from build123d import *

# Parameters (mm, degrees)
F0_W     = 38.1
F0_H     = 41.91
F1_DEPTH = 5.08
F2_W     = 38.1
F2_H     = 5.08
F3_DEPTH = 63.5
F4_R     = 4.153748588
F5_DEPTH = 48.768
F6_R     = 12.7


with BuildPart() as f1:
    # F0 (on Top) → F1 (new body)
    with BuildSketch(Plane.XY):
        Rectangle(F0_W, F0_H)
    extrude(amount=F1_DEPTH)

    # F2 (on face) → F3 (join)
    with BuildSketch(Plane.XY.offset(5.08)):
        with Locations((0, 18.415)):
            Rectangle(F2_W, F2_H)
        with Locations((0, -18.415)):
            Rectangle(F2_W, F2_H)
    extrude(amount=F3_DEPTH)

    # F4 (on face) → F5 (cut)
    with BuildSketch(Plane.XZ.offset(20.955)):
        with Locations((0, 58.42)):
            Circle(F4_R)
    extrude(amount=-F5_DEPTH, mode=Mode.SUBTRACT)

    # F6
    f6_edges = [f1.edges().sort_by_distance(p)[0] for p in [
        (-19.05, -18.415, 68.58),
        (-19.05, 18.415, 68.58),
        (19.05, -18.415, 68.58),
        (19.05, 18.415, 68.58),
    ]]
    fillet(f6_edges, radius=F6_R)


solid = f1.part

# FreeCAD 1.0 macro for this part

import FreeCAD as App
import Part
import Sketcher

V = App.Vector
Q = App.Units.Quantity


def edges_at(feature, points):
    """Names of the edges that pass closest to the given points."""
    edges = feature.Shape.Edges
    near = lambda p: min(range(len(edges)), key=lambda i: edges[i].distToShape(Part.Vertex(*p))[0])
    return sorted({f"Edge{near(p) + 1}" for p in points})


def add_polygon(sketch, points):
    """Adds a closed chain of lines whose ends are joined by coincident constraints."""
    first, n = sketch.GeometryCount, len(points)
    for a, b in zip(points, points[1:] + points[:1]):
        sketch.addGeometry(Part.LineSegment(App.Vector(*a, 0), App.Vector(*b, 0)), False)
    for i in range(n):
        sketch.addConstraint(Sketcher.Constraint("Coincident", first + i, 2, first + (i + 1) % n, 1))

doc = App.newDocument("Part")
body = doc.addObject("PartDesign::Body", "Body")

# Sketch on XY plane
sketch1 = body.newObject("Sketcher::SketchObject", "Sketch")
sketch1.AttachmentSupport = (doc.getObject("XY_Plane"), [""])
sketch1.MapMode = "FlatFace"
add_polygon(sketch1, [(-19, 21), (-19, -21), (19, -21), (19, 21)])  # lines 0-3
sketch1.addConstraint([
    Sketcher.Constraint("Vertical", 0),
    Sketcher.Constraint("Horizontal", 1),
    Sketcher.Constraint("Vertical", 2),
    Sketcher.Constraint("Horizontal", 3),
    Sketcher.Constraint("Symmetric", 0, 2, 2, 2, -1, 1),
    Sketcher.Constraint("DistanceX", 1, 1, 1, 2, Q("1.5 in")),
    Sketcher.Constraint("DistanceY", 0, 2, 0, 1, Q("1.65 in")),
])
pad1 = body.newObject("PartDesign::Pad", "Pad")
pad1.Profile = sketch1
pad1.Length = Q("0.2 in")

# Sketch on XY plane
sketch2 = body.newObject("Sketcher::SketchObject", "Sketch001")
sketch2.AttachmentSupport = (doc.getObject("XY_Plane"), [""])
sketch2.MapMode = "FlatFace"
sketch2.AttachmentOffset = App.Placement(V(0, 0, 0.2 * 25.4), App.Rotation())
add_polygon(sketch2, [(-19, 21), (-19, 16), (19, 16), (19, 21)])  # lines 0-3
add_polygon(sketch2, [(-19, -16), (-19, -21), (19, -21), (19, -16)])  # lines 4-7
sketch2.addConstraint([
    Sketcher.Constraint("Vertical", 0),
    Sketcher.Constraint("Horizontal", 1),
    Sketcher.Constraint("Vertical", 2),
    Sketcher.Constraint("Horizontal", 3),
    Sketcher.Constraint("Vertical", 4),
    Sketcher.Constraint("Horizontal", 5),
    Sketcher.Constraint("Vertical", 6),
    Sketcher.Constraint("Horizontal", 7),
    Sketcher.Constraint("Symmetric", 2, 2, 4, 2, -1, 1),
    Sketcher.Constraint("Symmetric", 0, 2, 6, 2, -1, 1),
    Sketcher.Constraint("Vertical", 3, 2, 4, 2),
    Sketcher.Constraint("DistanceX", 1, 1, 1, 2, Q("1.5 in")),
    Sketcher.Constraint("DistanceY", 0, 2, 0, 1, Q("0.2 in")),
    Sketcher.Constraint("DistanceY", 4, 2, 0, 2, Q("1.45 in")),
])
pad2 = body.newObject("PartDesign::Pad", "Pad001")
pad2.Profile = sketch2
pad2.Length = Q("2.5 in")

# Sketch on XZ plane
sketch3 = body.newObject("Sketcher::SketchObject", "Sketch002")
sketch3.AttachmentSupport = (doc.getObject("XZ_Plane"), [""])
sketch3.MapMode = "FlatFace"
sketch3.AttachmentOffset = App.Placement(V(0, 0, 0.825 * 25.4), App.Rotation())
sketch3.addGeometry(Part.Circle(V(0, 58.4, 0), V(0, 0, 1), 4.2), False)
sketch3.addConstraint([
    Sketcher.Constraint("PointOnObject", 0, 3, -2),
    Sketcher.Constraint("DistanceY", -1, 1, 0, 3, Q("2.3 in")),
    Sketcher.Constraint("Diameter", 0, Q("8.307497 mm")),
])
pocket1 = body.newObject("PartDesign::Pocket", "Pocket")
pocket1.Profile = sketch3
pocket1.Length = Q("1.92 in")
doc.recompute()

fillet = body.newObject("PartDesign::Fillet", "Fillet")
fillet.Base = (pocket1, edges_at(pocket1, [
    (-19.05, -18.415, 68.58),
    (-19.05, 18.415, 68.58),
    (19.05, -18.415, 68.58),
    (19.05, 18.415, 68.58),
]))
fillet.Radius = Q("0.5 in")

doc.recompute()
